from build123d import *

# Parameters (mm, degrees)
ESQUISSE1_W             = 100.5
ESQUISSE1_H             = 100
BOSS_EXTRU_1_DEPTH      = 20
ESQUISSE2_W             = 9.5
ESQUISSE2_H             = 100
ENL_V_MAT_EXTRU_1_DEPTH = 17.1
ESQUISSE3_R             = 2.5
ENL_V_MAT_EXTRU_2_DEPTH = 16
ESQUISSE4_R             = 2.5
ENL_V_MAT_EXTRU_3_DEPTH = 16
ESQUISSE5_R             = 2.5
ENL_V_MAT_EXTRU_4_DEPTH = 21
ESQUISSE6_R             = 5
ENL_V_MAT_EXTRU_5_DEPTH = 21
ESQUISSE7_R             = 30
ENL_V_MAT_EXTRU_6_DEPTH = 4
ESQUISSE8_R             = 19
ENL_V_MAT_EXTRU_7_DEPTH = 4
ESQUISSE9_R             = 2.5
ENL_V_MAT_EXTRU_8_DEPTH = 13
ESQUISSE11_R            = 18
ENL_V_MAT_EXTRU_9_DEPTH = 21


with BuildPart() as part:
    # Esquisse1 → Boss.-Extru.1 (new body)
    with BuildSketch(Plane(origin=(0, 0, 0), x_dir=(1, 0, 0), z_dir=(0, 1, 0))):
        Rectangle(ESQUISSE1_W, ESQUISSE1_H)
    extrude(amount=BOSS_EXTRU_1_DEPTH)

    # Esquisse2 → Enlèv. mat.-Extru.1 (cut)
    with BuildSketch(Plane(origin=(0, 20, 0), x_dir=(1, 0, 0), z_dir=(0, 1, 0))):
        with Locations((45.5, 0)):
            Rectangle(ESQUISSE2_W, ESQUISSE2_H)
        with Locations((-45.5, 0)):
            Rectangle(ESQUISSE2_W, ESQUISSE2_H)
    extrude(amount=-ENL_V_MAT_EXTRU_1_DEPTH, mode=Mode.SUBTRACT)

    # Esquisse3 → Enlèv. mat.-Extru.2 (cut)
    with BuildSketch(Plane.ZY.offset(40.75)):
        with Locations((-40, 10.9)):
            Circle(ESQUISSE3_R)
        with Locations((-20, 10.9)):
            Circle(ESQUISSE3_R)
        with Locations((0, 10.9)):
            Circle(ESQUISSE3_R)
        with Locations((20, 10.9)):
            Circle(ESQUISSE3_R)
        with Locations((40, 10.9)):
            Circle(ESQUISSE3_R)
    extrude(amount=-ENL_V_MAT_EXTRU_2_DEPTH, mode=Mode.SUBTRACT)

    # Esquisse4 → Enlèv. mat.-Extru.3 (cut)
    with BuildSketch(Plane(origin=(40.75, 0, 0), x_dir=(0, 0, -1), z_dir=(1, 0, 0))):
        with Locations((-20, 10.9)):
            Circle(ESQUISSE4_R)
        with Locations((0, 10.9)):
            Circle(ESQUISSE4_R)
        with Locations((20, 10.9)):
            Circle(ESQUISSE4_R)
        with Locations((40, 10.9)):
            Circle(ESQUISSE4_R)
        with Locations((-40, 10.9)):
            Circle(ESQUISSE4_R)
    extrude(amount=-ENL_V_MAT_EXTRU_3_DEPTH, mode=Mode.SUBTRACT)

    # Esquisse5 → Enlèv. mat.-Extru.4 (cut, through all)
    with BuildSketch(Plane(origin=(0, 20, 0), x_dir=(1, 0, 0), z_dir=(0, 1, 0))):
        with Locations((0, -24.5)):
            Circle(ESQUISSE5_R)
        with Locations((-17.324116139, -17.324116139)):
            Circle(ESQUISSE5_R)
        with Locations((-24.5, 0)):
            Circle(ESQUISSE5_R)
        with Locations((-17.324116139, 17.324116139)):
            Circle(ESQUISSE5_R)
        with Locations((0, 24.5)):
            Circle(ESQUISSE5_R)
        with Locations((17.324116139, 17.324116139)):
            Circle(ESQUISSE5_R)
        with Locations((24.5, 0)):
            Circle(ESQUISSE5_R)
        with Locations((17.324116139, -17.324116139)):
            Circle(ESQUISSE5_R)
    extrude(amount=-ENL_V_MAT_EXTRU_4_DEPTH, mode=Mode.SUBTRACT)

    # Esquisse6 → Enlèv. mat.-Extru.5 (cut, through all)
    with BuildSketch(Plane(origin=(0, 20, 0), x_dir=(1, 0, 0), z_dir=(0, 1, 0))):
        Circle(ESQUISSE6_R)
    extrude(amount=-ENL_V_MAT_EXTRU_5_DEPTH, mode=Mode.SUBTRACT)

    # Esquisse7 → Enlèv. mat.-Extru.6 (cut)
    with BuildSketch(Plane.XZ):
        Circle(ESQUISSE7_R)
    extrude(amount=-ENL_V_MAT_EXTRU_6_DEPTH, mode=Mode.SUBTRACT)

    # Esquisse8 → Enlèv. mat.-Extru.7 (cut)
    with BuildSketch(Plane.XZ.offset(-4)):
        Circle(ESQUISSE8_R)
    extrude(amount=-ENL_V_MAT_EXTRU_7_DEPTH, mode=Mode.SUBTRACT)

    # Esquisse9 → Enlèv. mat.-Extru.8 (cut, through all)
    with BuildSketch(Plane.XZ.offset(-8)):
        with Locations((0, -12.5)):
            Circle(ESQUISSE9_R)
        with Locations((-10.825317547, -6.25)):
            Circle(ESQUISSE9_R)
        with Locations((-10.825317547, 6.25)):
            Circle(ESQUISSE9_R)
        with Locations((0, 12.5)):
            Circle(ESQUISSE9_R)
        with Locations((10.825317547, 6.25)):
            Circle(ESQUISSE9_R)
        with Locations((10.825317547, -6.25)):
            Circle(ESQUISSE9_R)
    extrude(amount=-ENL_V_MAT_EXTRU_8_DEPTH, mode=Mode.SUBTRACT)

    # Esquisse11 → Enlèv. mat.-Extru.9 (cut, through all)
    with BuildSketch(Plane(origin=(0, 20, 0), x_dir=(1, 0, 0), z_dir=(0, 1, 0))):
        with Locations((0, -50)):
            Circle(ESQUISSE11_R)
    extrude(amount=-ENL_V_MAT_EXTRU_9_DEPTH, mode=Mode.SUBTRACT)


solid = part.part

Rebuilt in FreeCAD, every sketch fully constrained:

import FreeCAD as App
import Part
import Sketcher
Q = App.Units.Quantity

doc = App.newDocument("Part")
body = doc.addObject("PartDesign::Body", "Body")

sketch1 = body.newObject("Sketcher::SketchObject", "Sketch")
sketch1.AttachmentSupport = (doc.getObject("XZ_Plane"), [""])
sketch1.MapMode = "FlatFace"
sketch1.addGeometry([
    Part.LineSegment(App.Vector(-50, -50, 0), App.Vector(-50, 50, 0)),
    Part.LineSegment(App.Vector(-50, 50, 0), App.Vector(50, 50, 0)),
    Part.LineSegment(App.Vector(50, 50, 0), App.Vector(50, -50, 0)),
    Part.LineSegment(App.Vector(50, -50, 0), App.Vector(-50, -50, 0)),
], False)
sketch1.addConstraint([
    Sketcher.Constraint("Coincident", 0, 2, 1, 1),
    Sketcher.Constraint("Coincident", 1, 2, 2, 1),
    Sketcher.Constraint("Coincident", 2, 2, 3, 1),
    Sketcher.Constraint("Coincident", 3, 2, 0, 1),
    Sketcher.Constraint("Vertical", 0),
    Sketcher.Constraint("Horizontal", 1),
    Sketcher.Constraint("Vertical", 2),
    Sketcher.Constraint("Horizontal", 3),
    Sketcher.Constraint("Symmetric", 0, 2, 2, 2, -1, 1),
    Sketcher.Constraint("DistanceY", 0, 1, 0, 2, Q("100 mm")),
    Sketcher.Constraint("DistanceX", 1, 1, 1, 2, Q("100.5 mm")),
])
pad1 = body.newObject("PartDesign::Pad", "Pad")
pad1.Profile = sketch1
pad1.Length = 20
pad1.Reversed = True

sketch2 = body.newObject("Sketcher::SketchObject", "Sketch001")
sketch2.AttachmentSupport = (doc.getObject("XZ_Plane"), [""])
sketch2.MapMode = "FlatFace"
sketch2.AttachmentOffset = App.Placement(App.Vector(0, 0, -20), App.Rotation())
sketch2.addGeometry([
    Part.LineSegment(App.Vector(41, -50, 0), App.Vector(41, 50, 0)),
    Part.LineSegment(App.Vector(41, 50, 0), App.Vector(50, 50, 0)),
    Part.LineSegment(App.Vector(50, 50, 0), App.Vector(50, -50, 0)),
    Part.LineSegment(App.Vector(50, -50, 0), App.Vector(41, -50, 0)),
    Part.LineSegment(App.Vector(-50, -50, 0), App.Vector(-50, 50, 0)),
    Part.LineSegment(App.Vector(-50, 50, 0), App.Vector(-41, 50, 0)),
    Part.LineSegment(App.Vector(-41, 50, 0), App.Vector(-41, -50, 0)),
    Part.LineSegment(App.Vector(-41, -50, 0), App.Vector(-50, -50, 0)),
], False)
sketch2.addConstraint([
    Sketcher.Constraint("Coincident", 0, 2, 1, 1),
    Sketcher.Constraint("Coincident", 1, 2, 2, 1),
    Sketcher.Constraint("Coincident", 2, 2, 3, 1),
    Sketcher.Constraint("Coincident", 3, 2, 0, 1),
    Sketcher.Constraint("Coincident", 4, 2, 5, 1),
    Sketcher.Constraint("Coincident", 5, 2, 6, 1),
    Sketcher.Constraint("Coincident", 6, 2, 7, 1),
    Sketcher.Constraint("Coincident", 7, 2, 4, 1),
    Sketcher.Constraint("Vertical", 0),
    Sketcher.Constraint("Horizontal", 1),
    Sketcher.Constraint("Vertical", 2),
    Sketcher.Constraint("Horizontal", 3),
    Sketcher.Constraint("Vertical", 4),
    Sketcher.Constraint("Horizontal", 5),
    Sketcher.Constraint("Vertical", 6),
    Sketcher.Constraint("Horizontal", 7),
    Sketcher.Constraint("Symmetric", 2, 2, 4, 2, -1, 1),
    Sketcher.Constraint("Symmetric", 0, 2, 6, 2, -1, 1),
    Sketcher.Constraint("Horizontal", 1, 2, 4, 2),
    Sketcher.Constraint("DistanceY", 0, 1, 0, 2, Q("100 mm")),
    Sketcher.Constraint("DistanceX", 1, 1, 1, 2, Q("9.5 mm")),
    Sketcher.Constraint("DistanceX", 4, 2, 0, 2, Q("91 mm")),
])
pocket1 = body.newObject("PartDesign::Pocket", "Pocket")
pocket1.Profile = sketch2
pocket1.Length = 17.1
pocket1.Reversed = True

sketch3 = body.newObject("Sketcher::SketchObject", "Sketch002")
sketch3.AttachmentSupport = (doc.getObject("YZ_Plane"), [""])
sketch3.MapMode = "FlatFace"
sketch3.AttachmentOffset = App.Placement(App.Vector(0, 0, -40.75), App.Rotation())
sketch3.addGeometry([
    Part.Circle(App.Vector(10.9, -40, 0), App.Vector(0, 0, 1), 2.5),
    Part.Circle(App.Vector(10.9, -20, 0), App.Vector(0, 0, 1), 2.5),
    Part.Circle(App.Vector(10.9, 0, 0), App.Vector(0, 0, 1), 2.5),
    Part.Circle(App.Vector(10.9, 20, 0), App.Vector(0, 0, 1), 2.5),
    Part.Circle(App.Vector(10.9, 40, 0), App.Vector(0, 0, 1), 2.5),
], False)
sketch3.addConstraint([
    Sketcher.Constraint("Equal", 0, 1),
    Sketcher.Constraint("Equal", 1, 2),
    Sketcher.Constraint("Equal", 2, 3),
    Sketcher.Constraint("Equal", 3, 4),
    Sketcher.Constraint("Symmetric", 1, 3, 3, 3, -1),
    Sketcher.Constraint("Symmetric", 0, 3, 4, 3, -1),
    Sketcher.Constraint("PointOnObject", 2, 3, -1),
    Sketcher.Constraint("Vertical", 0, 3, 1, 3),
    Sketcher.Constraint("Vertical", 1, 3, 2, 3),
    Sketcher.Constraint("Diameter", 0, Q("5 mm")),
    Sketcher.Constraint("DistanceY", 0, 3, -1, 1, Q("40 mm")),
    Sketcher.Constraint("DistanceY", 1, 3, -1, 1, Q("20 mm")),
    Sketcher.Constraint("DistanceX", -1, 1, 0, 3, Q("10.9 mm")),
])
pocket2 = body.newObject("PartDesign::Pocket", "Pocket001")
pocket2.Profile = sketch3
pocket2.Length = 16
pocket2.Reversed = True

sketch4 = body.newObject("Sketcher::SketchObject", "Sketch003")
sketch4.AttachmentSupport = (doc.getObject("YZ_Plane"), [""])
sketch4.MapMode = "FlatFace"
sketch4.AttachmentOffset = App.Placement(App.Vector(0, 0, 40.75), App.Rotation())
sketch4.addGeometry([
    Part.Circle(App.Vector(10.9, 20, 0), App.Vector(0, 0, 1), 2.5),
    Part.Circle(App.Vector(10.9, 0, 0), App.Vector(0, 0, 1), 2.5),
    Part.Circle(App.Vector(10.9, -20, 0), App.Vector(0, 0, 1), 2.5),
    Part.Circle(App.Vector(10.9, -40, 0), App.Vector(0, 0, 1), 2.5),
    Part.Circle(App.Vector(10.9, 40, 0), App.Vector(0, 0, 1), 2.5),
], False)
sketch4.addConstraint([
    Sketcher.Constraint("Equal", 0, 1),
    Sketcher.Constraint("Equal", 1, 2),
    Sketcher.Constraint("Equal", 2, 3),
    Sketcher.Constraint("Equal", 3, 4),
    Sketcher.Constraint("Symmetric", 0, 3, 2, 3, -1),
    Sketcher.Constraint("Symmetric", 3, 3, 4, 3, -1),
    Sketcher.Constraint("PointOnObject", 1, 3, -1),
    Sketcher.Constraint("Vertical", 0, 3, 1, 3),
    Sketcher.Constraint("Vertical", 2, 3, 3, 3),
    Sketcher.Constraint("Diameter", 0, Q("5 mm")),
    Sketcher.Constraint("DistanceY", -1, 1, 0, 3, Q("20 mm")),
    Sketcher.Constraint("DistanceY", 3, 3, -1, 1, Q("40 mm")),
    Sketcher.Constraint("DistanceX", -1, 1, 0, 3, Q("10.9 mm")),
])
pocket3 = body.newObject("PartDesign::Pocket", "Pocket002")
pocket3.Profile = sketch4
pocket3.Length = 16

sketch5 = body.newObject("Sketcher::SketchObject", "Sketch004")
sketch5.AttachmentSupport = (doc.getObject("XZ_Plane"), [""])
sketch5.MapMode = "FlatFace"
sketch5.AttachmentOffset = App.Placement(App.Vector(0, 0, -20), App.Rotation())
sketch5.addGeometry([
    Part.Circle(App.Vector(0, 24.5, 0), App.Vector(0, 0, 1), 2.5),
    Part.Circle(App.Vector(-17.3, 17.3, 0), App.Vector(0, 0, 1), 2.5),
    Part.Circle(App.Vector(-24.5, 0, 0), App.Vector(0, 0, 1), 2.5),
    Part.Circle(App.Vector(-17.3, -17.3, 0), App.Vector(0, 0, 1), 2.5),
    Part.Circle(App.Vector(0, -24.5, 0), App.Vector(0, 0, 1), 2.5),
    Part.Circle(App.Vector(17.3, -17.3, 0), App.Vector(0, 0, 1), 2.5),
    Part.Circle(App.Vector(24.5, 0, 0), App.Vector(0, 0, 1), 2.5),
    Part.Circle(App.Vector(17.3, 17.3, 0), App.Vector(0, 0, 1), 2.5),
], False)
sketch5.addConstraint([
    Sketcher.Constraint("Equal", 0, 1),
    Sketcher.Constraint("Equal", 1, 2),
    Sketcher.Constraint("Equal", 2, 3),
    Sketcher.Constraint("Equal", 3, 4),
    Sketcher.Constraint("Equal", 4, 5),
    Sketcher.Constraint("Equal", 5, 6),
    Sketcher.Constraint("Equal", 6, 7),
    Sketcher.Constraint("Symmetric", 0, 3, 4, 3, -1, 1),
    Sketcher.Constraint("Symmetric", 1, 3, 5, 3, -1, 1),
    Sketcher.Constraint("Symmetric", 2, 3, 6, 3, -1, 1),
    Sketcher.Constraint("Symmetric", 3, 3, 7, 3, -1, 1),
    Sketcher.Constraint("Symmetric", 3, 3, 5, 3, -2),
    Sketcher.Constraint("PointOnObject", 0, 3, -2),
    Sketcher.Constraint("PointOnObject", 2, 3, -1),
    Sketcher.Constraint("Diameter", 0, Q("5 mm")),
    Sketcher.Constraint("DistanceY", 4, 3, 0, 3, Q("49 mm")),
    Sketcher.Constraint("DistanceX", 2, 3, -1, 1, Q("24.5 mm")),
    Sketcher.Constraint("DistanceX", 1, 3, -1, 1, Q("17.324116 mm")),
    Sketcher.Constraint("DistanceY", -1, 1, 1, 3, Q("17.324116 mm")),
])
pocket4 = body.newObject("PartDesign::Pocket", "Pocket003")
pocket4.Profile = sketch5
pocket4.Type = "ThroughAll"
pocket4.Reversed = True

sketch6 = body.newObject("Sketcher::SketchObject", "Sketch005")
sketch6.AttachmentSupport = (doc.getObject("XZ_Plane"), [""])
sketch6.MapMode = "FlatFace"
sketch6.AttachmentOffset = App.Placement(App.Vector(0, 0, -20), App.Rotation())
sketch6.addGeometry(Part.Circle(App.Vector(0, 0, 0), App.Vector(0, 0, 1), 5), False)
sketch6.addConstraint([
    Sketcher.Constraint("Coincident", 0, 3, -1, 1),
    Sketcher.Constraint("Diameter", 0, Q("10 mm")),
])
pocket5 = body.newObject("PartDesign::Pocket", "Pocket004")
pocket5.Profile = sketch6
pocket5.Type = "ThroughAll"
pocket5.Reversed = True

sketch7 = body.newObject("Sketcher::SketchObject", "Sketch006")
sketch7.AttachmentSupport = (doc.getObject("XZ_Plane"), [""])
sketch7.MapMode = "FlatFace"
sketch7.addGeometry(Part.Circle(App.Vector(0, 0, 0), App.Vector(0, 0, 1), 30), False)
sketch7.addConstraint([
    Sketcher.Constraint("Coincident", 0, 3, -1, 1),
    Sketcher.Constraint("Diameter", 0, Q("60 mm")),
])
pocket6 = body.newObject("PartDesign::Pocket", "Pocket005")
pocket6.Profile = sketch7
pocket6.Length = 4

sketch8 = body.newObject("Sketcher::SketchObject", "Sketch007")
sketch8.AttachmentSupport = (doc.getObject("XZ_Plane"), [""])
sketch8.MapMode = "FlatFace"
sketch8.AttachmentOffset = App.Placement(App.Vector(0, 0, -4), App.Rotation())
sketch8.addGeometry(Part.Circle(App.Vector(0, 0, 0), App.Vector(0, 0, 1), 19), False)
sketch8.addConstraint([
    Sketcher.Constraint("Coincident", 0, 3, -1, 1),
    Sketcher.Constraint("Diameter", 0, Q("38 mm")),
])
pocket7 = body.newObject("PartDesign::Pocket", "Pocket006")
pocket7.Profile = sketch8
pocket7.Length = 4

sketch9 = body.newObject("Sketcher::SketchObject", "Sketch008")
sketch9.AttachmentSupport = (doc.getObject("XZ_Plane"), [""])
sketch9.MapMode = "FlatFace"
sketch9.AttachmentOffset = App.Placement(App.Vector(0, 0, -8), App.Rotation())
sketch9.addGeometry([
    Part.Circle(App.Vector(0, -12.5, 0), App.Vector(0, 0, 1), 2.5),
    Part.Circle(App.Vector(-10.8, -6.2, 0), App.Vector(0, 0, 1), 2.5),
    Part.Circle(App.Vector(-10.8, 6.2, 0), App.Vector(0, 0, 1), 2.5),
    Part.Circle(App.Vector(0, 12.5, 0), App.Vector(0, 0, 1), 2.5),
    Part.Circle(App.Vector(10.8, 6.2, 0), App.Vector(0, 0, 1), 2.5),
    Part.Circle(App.Vector(10.8, -6.2, 0), App.Vector(0, 0, 1), 2.5),
], False)
sketch9.addConstraint([
    Sketcher.Constraint("Equal", 0, 1),
    Sketcher.Constraint("Equal", 1, 2),
    Sketcher.Constraint("Equal", 2, 3),
    Sketcher.Constraint("Equal", 3, 4),
    Sketcher.Constraint("Equal", 4, 5),
    Sketcher.Constraint("Symmetric", 0, 3, 3, 3, -1, 1),
    Sketcher.Constraint("Symmetric", 1, 3, 4, 3, -1, 1),
    Sketcher.Constraint("Symmetric", 2, 3, 5, 3, -1, 1),
    Sketcher.Constraint("Symmetric", 2, 3, 4, 3, -2),
    Sketcher.Constraint("PointOnObject", 0, 3, -2),
    Sketcher.Constraint("Diameter", 0, Q("5 mm")),
    Sketcher.Constraint("DistanceY", 0, 3, 3, 3, Q("25 mm")),
    Sketcher.Constraint("DistanceY", 1, 3, 2, 3, Q("12.5 mm")),
    Sketcher.Constraint("DistanceX", 1, 3, -1, 1, Q("10.825318 mm")),
])
pocket8 = body.newObject("PartDesign::Pocket", "Pocket007")
pocket8.Profile = sketch9
pocket8.Type = "ThroughAll"

sketch10 = body.newObject("Sketcher::SketchObject", "Sketch009")
sketch10.AttachmentSupport = (doc.getObject("XZ_Plane"), [""])
sketch10.MapMode = "FlatFace"
sketch10.AttachmentOffset = App.Placement(App.Vector(0, 0, -20), App.Rotation())
sketch10.addGeometry(Part.Circle(App.Vector(0, 50, 0), App.Vector(0, 0, 1), 18), False)
sketch10.addConstraint([
    Sketcher.Constraint("PointOnObject", 0, 3, -2),
    Sketcher.Constraint("Diameter", 0, Q("36 mm")),
    Sketcher.Constraint("DistanceY", -1, 1, 0, 3, Q("50 mm")),
])
pocket9 = body.newObject("PartDesign::Pocket", "Pocket008")
pocket9.Profile = sketch10
pocket9.Type = "ThroughAll"
pocket9.Reversed = True

doc.recompute()
